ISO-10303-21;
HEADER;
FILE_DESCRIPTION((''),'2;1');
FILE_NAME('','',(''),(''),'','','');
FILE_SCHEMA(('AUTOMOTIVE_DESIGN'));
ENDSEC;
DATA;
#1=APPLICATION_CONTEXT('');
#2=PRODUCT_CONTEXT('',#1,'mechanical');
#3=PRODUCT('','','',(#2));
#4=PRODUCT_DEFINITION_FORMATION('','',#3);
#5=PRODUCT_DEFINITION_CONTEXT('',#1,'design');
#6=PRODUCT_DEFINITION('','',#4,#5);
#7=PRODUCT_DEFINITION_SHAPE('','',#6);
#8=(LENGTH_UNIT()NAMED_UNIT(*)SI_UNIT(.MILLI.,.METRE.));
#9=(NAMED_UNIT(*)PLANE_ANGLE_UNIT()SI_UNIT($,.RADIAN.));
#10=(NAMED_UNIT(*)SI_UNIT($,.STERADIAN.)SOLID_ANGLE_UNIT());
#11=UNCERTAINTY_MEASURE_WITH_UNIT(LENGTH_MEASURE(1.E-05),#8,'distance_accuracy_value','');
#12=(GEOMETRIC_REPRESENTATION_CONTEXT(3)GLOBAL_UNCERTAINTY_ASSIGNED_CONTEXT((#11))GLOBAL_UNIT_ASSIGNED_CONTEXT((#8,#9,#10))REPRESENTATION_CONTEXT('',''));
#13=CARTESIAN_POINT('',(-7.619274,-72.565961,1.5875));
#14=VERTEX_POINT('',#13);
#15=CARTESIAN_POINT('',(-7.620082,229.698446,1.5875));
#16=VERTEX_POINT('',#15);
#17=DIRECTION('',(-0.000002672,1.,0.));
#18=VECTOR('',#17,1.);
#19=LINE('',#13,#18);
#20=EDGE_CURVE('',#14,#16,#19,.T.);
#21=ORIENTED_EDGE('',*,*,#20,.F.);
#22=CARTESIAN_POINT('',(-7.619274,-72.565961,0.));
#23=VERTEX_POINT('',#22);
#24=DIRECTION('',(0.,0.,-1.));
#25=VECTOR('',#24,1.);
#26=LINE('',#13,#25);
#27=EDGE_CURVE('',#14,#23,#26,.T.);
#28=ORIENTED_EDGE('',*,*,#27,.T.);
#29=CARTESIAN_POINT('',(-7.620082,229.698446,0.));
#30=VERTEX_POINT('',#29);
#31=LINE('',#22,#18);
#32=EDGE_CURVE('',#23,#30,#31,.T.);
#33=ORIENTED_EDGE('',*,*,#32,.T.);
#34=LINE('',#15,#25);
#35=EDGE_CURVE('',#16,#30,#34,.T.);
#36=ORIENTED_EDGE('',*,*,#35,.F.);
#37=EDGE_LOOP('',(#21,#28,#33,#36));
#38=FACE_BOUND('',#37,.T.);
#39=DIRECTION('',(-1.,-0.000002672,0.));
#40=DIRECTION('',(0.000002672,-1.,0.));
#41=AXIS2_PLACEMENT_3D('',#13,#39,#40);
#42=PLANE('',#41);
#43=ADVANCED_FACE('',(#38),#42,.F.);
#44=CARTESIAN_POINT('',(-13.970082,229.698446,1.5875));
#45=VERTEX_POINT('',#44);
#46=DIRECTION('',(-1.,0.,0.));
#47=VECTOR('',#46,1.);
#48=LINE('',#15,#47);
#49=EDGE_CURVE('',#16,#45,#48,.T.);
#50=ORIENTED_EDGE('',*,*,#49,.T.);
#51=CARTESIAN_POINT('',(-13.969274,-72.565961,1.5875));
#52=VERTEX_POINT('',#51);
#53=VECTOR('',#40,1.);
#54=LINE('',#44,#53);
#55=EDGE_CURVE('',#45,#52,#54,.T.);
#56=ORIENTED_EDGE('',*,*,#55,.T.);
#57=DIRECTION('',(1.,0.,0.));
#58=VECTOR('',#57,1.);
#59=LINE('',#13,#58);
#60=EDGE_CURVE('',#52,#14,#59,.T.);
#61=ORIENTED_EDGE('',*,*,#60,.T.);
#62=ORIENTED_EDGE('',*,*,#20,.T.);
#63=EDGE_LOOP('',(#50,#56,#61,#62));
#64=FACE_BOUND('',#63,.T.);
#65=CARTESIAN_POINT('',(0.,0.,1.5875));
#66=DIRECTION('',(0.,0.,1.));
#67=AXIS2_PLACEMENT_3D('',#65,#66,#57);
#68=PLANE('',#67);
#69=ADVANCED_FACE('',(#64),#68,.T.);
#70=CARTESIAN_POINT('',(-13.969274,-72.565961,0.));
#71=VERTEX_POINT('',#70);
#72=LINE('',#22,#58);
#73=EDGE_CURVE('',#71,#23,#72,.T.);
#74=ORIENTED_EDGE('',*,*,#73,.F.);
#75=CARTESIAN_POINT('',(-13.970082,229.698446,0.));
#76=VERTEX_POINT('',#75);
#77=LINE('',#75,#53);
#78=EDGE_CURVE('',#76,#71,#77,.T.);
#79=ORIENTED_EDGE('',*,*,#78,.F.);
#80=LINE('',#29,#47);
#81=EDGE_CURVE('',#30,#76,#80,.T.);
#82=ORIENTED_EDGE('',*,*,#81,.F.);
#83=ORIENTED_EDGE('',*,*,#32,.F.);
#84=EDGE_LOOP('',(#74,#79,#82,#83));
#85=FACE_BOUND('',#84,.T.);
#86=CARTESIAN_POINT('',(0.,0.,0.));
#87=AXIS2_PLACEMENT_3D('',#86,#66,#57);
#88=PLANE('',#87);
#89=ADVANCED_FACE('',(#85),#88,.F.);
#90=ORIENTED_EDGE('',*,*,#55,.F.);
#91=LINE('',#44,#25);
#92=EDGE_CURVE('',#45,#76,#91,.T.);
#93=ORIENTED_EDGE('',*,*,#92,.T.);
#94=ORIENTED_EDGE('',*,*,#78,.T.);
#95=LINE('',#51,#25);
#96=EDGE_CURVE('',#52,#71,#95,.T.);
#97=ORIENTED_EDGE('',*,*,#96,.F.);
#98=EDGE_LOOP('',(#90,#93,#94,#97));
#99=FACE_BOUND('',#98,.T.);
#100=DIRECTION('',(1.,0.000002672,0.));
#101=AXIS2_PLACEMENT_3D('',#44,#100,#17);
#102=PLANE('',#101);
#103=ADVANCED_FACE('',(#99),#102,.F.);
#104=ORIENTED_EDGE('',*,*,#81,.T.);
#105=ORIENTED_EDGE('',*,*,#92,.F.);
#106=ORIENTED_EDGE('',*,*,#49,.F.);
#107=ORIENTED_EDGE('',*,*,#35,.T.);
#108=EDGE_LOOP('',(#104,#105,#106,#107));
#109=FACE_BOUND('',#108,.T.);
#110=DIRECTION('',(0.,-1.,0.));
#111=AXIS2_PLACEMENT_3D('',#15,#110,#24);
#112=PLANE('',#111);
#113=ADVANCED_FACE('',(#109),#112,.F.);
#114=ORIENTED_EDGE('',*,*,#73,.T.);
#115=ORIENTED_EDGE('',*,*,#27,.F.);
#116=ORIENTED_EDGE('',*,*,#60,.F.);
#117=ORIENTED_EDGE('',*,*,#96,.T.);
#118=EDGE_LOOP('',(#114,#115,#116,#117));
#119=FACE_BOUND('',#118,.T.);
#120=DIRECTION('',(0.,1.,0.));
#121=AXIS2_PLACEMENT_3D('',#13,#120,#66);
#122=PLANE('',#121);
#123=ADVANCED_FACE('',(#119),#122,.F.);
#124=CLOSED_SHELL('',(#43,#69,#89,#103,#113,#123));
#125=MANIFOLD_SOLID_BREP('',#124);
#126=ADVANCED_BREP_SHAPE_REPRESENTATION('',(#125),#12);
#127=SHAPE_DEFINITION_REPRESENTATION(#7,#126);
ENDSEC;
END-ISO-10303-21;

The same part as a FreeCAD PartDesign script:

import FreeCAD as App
import Part
import Sketcher
from FreeCAD import Vector
Q = App.Units.Quantity

doc = App.newDocument("Part")
body = doc.addObject("PartDesign::Body", "Body")

# Sketch on XY plane
sketch1 = body.newObject("Sketcher::SketchObject", "Sketch")
sketch1.AttachmentSupport = (doc.getObject("XY_Plane"), [""])
sketch1.MapMode = "FlatFace"
sketch1.addGeometry([
    Part.LineSegment(Vector(-13.969274, -72.565961, 0), Vector(-7.619274, -72.565961, 0)),
    Part.LineSegment(Vector(-7.619274, -72.565961, 0), Vector(-7.620082, 229.698446, 0)),
    Part.LineSegment(Vector(-7.620082, 229.698446, 0), Vector(-13.970082, 229.698446, 0)),
    Part.LineSegment(Vector(-13.970082, 229.698446, 0), Vector(-13.969274, -72.565961, 0)),
], False)
sketch1.addConstraint([
    Sketcher.Constraint("Coincident", 0, 2, 1, 1),
    Sketcher.Constraint("Coincident", 1, 2, 2, 1),
    Sketcher.Constraint("Coincident", 2, 2, 3, 1),
    Sketcher.Constraint("Coincident", 3, 2, 0, 1),
    Sketcher.Constraint("Horizontal", 0),
    Sketcher.Constraint("Horizontal", 2),
    Sketcher.Constraint("Parallel", 1, 3),
    Sketcher.Constraint("DistanceX", 0, 1, 0, 2, Q("0.25 in")),
    Sketcher.Constraint("DistanceY", 0, 2, -1, 1, 72.565961),
    Sketcher.Constraint("DistanceX", 1, 2, -1, 1, 7.620082),
    Sketcher.Constraint("Distance", 1, 302.264407),
    Sketcher.Constraint("DistanceX", 0, 2, -1, 1, 7.619274),
])
pad1 = body.newObject("PartDesign::Pad", "Pad")
pad1.Profile = sketch1
pad1.Length = Q("0.0625 in")

doc.recompute()
